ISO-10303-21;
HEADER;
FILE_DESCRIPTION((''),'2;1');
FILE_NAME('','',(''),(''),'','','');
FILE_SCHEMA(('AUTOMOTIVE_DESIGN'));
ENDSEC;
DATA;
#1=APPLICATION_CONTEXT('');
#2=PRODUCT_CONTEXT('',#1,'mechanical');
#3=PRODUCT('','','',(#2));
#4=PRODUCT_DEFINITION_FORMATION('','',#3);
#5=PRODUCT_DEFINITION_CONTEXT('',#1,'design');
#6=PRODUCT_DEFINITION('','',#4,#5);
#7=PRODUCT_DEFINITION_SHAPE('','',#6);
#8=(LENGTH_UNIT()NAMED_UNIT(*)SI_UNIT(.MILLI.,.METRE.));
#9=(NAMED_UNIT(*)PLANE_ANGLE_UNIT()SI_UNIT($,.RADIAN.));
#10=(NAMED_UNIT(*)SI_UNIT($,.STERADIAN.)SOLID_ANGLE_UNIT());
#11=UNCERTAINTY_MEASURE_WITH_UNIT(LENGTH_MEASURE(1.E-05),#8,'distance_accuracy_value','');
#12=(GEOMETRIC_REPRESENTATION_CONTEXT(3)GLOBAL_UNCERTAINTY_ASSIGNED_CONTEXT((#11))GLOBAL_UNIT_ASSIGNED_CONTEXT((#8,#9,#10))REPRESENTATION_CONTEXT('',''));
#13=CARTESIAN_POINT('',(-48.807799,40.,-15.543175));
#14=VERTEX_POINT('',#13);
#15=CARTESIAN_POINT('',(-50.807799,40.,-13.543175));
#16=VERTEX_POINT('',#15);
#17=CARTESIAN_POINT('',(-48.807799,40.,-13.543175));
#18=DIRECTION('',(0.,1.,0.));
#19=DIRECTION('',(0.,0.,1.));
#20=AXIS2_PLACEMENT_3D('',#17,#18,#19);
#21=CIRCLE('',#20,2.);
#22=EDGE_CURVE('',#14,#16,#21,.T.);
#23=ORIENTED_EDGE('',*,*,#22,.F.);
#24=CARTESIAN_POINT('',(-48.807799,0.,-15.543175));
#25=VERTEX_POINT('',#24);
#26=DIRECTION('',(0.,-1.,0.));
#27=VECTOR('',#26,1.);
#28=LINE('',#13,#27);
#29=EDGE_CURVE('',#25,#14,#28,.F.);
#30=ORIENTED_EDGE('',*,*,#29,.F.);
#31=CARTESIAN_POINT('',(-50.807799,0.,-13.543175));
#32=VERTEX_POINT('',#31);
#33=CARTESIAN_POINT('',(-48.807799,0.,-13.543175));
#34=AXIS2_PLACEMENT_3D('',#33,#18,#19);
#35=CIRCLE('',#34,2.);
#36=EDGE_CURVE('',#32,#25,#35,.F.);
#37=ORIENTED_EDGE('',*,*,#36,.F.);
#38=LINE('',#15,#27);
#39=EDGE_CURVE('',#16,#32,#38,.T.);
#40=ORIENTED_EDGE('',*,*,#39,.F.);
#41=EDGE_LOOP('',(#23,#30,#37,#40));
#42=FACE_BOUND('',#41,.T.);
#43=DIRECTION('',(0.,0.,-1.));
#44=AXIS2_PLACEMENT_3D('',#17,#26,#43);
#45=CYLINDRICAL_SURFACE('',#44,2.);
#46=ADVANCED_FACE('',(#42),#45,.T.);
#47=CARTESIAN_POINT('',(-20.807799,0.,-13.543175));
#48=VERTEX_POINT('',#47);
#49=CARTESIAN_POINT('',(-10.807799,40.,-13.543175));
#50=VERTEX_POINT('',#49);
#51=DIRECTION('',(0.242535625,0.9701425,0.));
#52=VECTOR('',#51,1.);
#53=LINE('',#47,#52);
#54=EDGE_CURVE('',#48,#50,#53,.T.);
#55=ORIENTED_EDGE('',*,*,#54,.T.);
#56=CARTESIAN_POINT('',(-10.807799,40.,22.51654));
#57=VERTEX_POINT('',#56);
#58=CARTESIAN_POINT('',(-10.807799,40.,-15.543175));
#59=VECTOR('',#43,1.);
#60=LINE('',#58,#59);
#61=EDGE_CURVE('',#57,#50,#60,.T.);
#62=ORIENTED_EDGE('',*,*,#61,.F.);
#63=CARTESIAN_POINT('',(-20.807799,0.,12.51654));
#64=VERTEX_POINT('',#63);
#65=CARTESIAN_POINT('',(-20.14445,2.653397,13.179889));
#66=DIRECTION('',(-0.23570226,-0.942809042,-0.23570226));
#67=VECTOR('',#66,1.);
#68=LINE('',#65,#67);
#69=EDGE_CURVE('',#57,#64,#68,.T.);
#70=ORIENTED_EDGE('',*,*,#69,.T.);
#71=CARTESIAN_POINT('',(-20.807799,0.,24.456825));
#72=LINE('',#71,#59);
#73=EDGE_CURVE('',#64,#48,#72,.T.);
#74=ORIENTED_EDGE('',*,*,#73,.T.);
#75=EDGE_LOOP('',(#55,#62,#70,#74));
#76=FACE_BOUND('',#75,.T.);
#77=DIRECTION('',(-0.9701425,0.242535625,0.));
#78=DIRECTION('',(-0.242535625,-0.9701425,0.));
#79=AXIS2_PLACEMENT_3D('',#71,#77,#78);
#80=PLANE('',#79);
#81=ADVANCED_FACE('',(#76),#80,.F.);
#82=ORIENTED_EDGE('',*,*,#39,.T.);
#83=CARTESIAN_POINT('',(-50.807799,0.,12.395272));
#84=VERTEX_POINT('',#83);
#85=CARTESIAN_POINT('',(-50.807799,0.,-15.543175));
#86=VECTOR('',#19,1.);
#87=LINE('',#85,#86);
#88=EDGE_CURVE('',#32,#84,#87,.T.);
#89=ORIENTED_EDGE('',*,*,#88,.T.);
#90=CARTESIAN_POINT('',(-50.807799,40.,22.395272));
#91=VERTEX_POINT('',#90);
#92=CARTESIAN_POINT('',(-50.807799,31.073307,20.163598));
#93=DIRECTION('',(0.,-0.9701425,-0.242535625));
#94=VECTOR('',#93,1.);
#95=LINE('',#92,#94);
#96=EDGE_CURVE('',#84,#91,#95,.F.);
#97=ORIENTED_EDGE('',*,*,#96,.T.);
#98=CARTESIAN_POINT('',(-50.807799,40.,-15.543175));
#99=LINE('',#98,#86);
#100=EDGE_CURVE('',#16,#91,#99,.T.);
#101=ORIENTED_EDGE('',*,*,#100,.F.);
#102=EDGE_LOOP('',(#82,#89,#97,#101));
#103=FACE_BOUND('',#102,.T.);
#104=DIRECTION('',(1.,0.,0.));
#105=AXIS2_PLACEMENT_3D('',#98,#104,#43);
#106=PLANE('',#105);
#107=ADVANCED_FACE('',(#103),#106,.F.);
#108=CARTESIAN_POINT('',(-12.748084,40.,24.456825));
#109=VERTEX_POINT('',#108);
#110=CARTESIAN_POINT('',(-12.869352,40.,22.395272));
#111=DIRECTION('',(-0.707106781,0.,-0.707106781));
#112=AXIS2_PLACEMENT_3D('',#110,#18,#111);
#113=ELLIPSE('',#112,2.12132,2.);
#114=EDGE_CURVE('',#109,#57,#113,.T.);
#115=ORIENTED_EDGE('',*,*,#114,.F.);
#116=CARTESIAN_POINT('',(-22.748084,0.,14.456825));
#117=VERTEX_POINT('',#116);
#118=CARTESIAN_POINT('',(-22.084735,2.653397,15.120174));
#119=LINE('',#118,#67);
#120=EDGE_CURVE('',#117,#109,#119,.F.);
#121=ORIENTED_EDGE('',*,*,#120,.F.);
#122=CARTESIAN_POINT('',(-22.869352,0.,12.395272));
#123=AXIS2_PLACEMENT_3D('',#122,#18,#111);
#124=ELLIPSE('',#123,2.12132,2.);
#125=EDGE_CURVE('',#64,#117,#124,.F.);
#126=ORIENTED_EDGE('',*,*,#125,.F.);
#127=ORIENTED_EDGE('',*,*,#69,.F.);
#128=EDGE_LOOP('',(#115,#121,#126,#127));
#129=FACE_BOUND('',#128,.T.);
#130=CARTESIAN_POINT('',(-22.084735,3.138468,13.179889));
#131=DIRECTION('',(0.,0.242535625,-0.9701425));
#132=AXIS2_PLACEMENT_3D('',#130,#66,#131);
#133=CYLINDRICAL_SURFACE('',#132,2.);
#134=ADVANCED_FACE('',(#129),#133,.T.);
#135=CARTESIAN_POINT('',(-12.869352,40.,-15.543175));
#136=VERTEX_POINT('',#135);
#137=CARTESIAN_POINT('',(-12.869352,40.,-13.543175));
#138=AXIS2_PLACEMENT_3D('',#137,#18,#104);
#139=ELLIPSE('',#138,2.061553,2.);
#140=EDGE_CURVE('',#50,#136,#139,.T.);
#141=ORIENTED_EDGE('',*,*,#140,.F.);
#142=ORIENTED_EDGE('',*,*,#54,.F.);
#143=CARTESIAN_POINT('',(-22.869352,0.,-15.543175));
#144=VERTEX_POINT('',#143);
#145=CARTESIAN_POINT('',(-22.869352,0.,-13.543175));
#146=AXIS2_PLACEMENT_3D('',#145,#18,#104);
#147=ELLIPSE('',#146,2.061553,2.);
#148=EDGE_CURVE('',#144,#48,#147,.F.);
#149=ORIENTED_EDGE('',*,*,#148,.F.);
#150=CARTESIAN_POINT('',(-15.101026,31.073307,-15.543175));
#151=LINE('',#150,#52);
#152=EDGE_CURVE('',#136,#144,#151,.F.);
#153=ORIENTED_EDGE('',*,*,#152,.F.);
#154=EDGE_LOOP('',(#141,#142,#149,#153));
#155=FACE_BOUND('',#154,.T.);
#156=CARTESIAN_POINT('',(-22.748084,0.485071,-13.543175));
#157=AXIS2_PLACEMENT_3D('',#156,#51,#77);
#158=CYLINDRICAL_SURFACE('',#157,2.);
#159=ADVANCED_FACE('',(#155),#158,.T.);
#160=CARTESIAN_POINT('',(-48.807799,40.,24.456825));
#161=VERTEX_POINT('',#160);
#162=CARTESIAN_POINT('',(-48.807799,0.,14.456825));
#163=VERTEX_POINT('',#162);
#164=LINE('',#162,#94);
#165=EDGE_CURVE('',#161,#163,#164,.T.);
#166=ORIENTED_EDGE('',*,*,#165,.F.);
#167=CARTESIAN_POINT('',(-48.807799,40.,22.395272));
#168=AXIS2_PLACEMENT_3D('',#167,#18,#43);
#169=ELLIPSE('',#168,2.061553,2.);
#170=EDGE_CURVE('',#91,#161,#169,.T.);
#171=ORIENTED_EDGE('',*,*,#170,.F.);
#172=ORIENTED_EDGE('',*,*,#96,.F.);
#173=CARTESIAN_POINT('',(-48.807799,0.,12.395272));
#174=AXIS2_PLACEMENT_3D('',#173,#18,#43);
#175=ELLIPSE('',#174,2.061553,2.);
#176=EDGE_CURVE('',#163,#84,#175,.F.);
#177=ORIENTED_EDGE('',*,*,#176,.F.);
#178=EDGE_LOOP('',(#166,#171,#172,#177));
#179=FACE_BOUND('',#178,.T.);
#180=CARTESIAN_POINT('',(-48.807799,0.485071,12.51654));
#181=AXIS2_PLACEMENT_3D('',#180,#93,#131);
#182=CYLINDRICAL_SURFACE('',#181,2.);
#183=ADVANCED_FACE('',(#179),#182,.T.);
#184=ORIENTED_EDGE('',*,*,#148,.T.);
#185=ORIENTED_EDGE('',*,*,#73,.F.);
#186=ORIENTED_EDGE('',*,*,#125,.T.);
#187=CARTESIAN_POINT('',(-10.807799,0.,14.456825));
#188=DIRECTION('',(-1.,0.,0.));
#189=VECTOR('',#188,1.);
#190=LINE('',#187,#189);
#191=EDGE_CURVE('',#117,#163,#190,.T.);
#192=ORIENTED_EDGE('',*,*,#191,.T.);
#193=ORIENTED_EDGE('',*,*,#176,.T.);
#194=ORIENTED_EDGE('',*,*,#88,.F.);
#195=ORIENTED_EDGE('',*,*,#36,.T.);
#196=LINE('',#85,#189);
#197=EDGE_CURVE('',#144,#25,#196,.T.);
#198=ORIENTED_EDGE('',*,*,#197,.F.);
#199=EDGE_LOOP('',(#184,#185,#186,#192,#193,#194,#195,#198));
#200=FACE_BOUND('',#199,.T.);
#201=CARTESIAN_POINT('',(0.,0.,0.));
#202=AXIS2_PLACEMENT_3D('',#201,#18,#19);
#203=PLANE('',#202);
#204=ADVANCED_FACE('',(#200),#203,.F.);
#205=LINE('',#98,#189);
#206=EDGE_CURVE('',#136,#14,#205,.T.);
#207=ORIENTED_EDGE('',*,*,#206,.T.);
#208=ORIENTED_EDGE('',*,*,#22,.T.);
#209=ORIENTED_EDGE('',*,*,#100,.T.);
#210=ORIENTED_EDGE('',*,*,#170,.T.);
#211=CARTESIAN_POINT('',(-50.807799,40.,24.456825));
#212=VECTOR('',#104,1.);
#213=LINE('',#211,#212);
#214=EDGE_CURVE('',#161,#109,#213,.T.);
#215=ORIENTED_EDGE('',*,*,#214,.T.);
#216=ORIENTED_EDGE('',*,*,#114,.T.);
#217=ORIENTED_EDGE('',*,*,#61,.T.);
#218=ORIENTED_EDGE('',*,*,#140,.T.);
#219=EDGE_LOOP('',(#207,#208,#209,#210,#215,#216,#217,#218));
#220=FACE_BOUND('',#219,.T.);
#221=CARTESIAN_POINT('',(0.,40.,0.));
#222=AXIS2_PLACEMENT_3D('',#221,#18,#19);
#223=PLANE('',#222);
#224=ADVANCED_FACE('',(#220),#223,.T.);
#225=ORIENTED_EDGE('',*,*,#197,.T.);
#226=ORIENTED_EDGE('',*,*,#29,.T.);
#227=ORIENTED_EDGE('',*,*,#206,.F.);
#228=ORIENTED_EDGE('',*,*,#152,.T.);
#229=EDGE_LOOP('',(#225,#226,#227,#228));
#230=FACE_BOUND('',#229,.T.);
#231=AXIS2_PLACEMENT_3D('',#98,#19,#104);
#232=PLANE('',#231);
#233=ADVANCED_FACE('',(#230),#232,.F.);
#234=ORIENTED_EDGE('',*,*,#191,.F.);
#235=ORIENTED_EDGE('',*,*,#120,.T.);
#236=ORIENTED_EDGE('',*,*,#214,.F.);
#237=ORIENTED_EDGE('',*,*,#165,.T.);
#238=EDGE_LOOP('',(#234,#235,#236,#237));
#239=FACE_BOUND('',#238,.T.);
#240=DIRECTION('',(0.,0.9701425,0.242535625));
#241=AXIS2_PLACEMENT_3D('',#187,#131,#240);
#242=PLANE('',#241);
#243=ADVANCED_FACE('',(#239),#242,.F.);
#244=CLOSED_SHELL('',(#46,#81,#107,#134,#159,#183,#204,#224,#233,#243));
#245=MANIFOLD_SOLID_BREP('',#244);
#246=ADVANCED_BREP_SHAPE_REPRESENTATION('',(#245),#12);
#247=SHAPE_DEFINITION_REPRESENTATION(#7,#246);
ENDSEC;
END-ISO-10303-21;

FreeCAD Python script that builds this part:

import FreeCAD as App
import Part
import Sketcher
Q = App.Units.Quantity


def edges_at(feature, points):
    """Names of the edges that pass closest to the given points."""
    edges = feature.Shape.Edges
    near = lambda p: min(range(len(edges)), key=lambda i: edges[i].distToShape(Part.Vertex(*p))[0])
    return sorted({f"Edge{near(p) + 1}" for p in points})


def add_polygon(sketch, points):
    """Adds a closed chain of lines whose ends are joined by coincident constraints."""
    first, n = sketch.GeometryCount, len(points)
    for a, b in zip(points, points[1:] + points[:1]):
        sketch.addGeometry(Part.LineSegment(App.Vector(*a, 0), App.Vector(*b, 0)), False)
    for i in range(n):
        sketch.addConstraint(Sketcher.Constraint("Coincident", first + i, 2, first + (i + 1) % n, 1))

doc = App.newDocument("Part")
body = doc.addObject("PartDesign::Body", "Body")

# Sketch on XZ plane
sketch1 = doc.addObject("Sketcher::SketchObject", "Sketch")
body.addObject(sketch1)
sketch1.AttachmentSupport = (doc.XZ_Plane, [""])
sketch1.MapMode = "FlatFace"
add_polygon(sketch1, [(-51, -16), (-51, 24), (-11, 24), (-11, -16)])  # lines 0-3
sketch1.addConstraint([
    Sketcher.Constraint("Vertical", 0),
    Sketcher.Constraint("Horizontal", 1),
    Sketcher.Constraint("Vertical", 2),
    Sketcher.Constraint("Horizontal", 3),
    Sketcher.Constraint("Equal", 3, 0),
    Sketcher.Constraint("DistanceX", 1, 1, 1, 2, Q("40 mm")),
    Sketcher.Constraint("DistanceX", 0, 2, -1, 1, Q("50.807799 mm")),
    Sketcher.Constraint("DistanceY", -1, 1, 0, 2, Q("24.456825 mm")),
])
pad1 = doc.addObject("PartDesign::Pad", "Pad")
body.addObject(pad1)
pad1.Profile = sketch1
pad1.Length = 40
pad1.Reversed = True

# Sketch on XY plane
sketch2 = doc.addObject("Sketcher::SketchObject", "Sketch001")
body.addObject(sketch2)
sketch2.AttachmentSupport = (doc.XY_Plane, [""])
sketch2.MapMode = "FlatFace"
sketch2.AttachmentOffset = App.Placement(App.Vector(0, 0, -15.543175), App.Rotation())
add_polygon(sketch2, [(-11, 40), (-11, 0), (-21, 0)])  # lines 0-2
sketch2.addConstraint([
    Sketcher.Constraint("Vertical", 0),
    Sketcher.Constraint("Horizontal", 1),
    Sketcher.Constraint("PointOnObject", 0, 2, -1),
    Sketcher.Constraint("DistanceX", 1, 2, 1, 1, Q("10 mm")),
    Sketcher.Constraint("DistanceY", 0, 2, 0, 1, Q("40 mm")),
    Sketcher.Constraint("DistanceX", 0, 2, -1, 1, Q("10.807799 mm")),
])
pocket1 = doc.addObject("PartDesign::Pocket", "Pocket")
body.addObject(pocket1)
pocket1.Profile = sketch2
pocket1.Type = "ThroughAll"
pocket1.Reversed = True

# Sketch on YZ plane
sketch3 = doc.addObject("Sketcher::SketchObject", "Sketch002")
body.addObject(sketch3)
sketch3.AttachmentSupport = (doc.YZ_Plane, [""])
sketch3.MapMode = "FlatFace"
sketch3.AttachmentOffset = App.Placement(App.Vector(0, 0, -50.807799), App.Rotation())
add_polygon(sketch3, [(0, 14), (0, 24), (40, 24)])  # lines 0-2
sketch3.addConstraint([
    Sketcher.Constraint("Vertical", 0),
    Sketcher.Constraint("Horizontal", 1),
    Sketcher.Constraint("PointOnObject", 0, 2, -2),
    Sketcher.Constraint("DistanceX", 1, 1, 1, 2, Q("40 mm")),
    Sketcher.Constraint("DistanceY", 0, 1, 0, 2, Q("10 mm")),
    Sketcher.Constraint("DistanceY", -1, 1, 0, 2, Q("24.456825 mm")),
])
pocket2 = doc.addObject("PartDesign::Pocket", "Pocket001")
body.addObject(pocket2)
pocket2.Profile = sketch3
pocket2.Type = "ThroughAll"
pocket2.Reversed = True
doc.recompute()

fillet = doc.addObject("PartDesign::Fillet", "Fillet")
body.addObject(fillet)
fillet.Base = (pocket2, edges_at(pocket2, [
    (-15.808, 20, -15.543),
    (-15.808, 20, 19.457),
    (-50.808, 20, 19.457),
    (-50.808, 20, -15.543),
]))
fillet.Radius = 2

doc.recompute()
